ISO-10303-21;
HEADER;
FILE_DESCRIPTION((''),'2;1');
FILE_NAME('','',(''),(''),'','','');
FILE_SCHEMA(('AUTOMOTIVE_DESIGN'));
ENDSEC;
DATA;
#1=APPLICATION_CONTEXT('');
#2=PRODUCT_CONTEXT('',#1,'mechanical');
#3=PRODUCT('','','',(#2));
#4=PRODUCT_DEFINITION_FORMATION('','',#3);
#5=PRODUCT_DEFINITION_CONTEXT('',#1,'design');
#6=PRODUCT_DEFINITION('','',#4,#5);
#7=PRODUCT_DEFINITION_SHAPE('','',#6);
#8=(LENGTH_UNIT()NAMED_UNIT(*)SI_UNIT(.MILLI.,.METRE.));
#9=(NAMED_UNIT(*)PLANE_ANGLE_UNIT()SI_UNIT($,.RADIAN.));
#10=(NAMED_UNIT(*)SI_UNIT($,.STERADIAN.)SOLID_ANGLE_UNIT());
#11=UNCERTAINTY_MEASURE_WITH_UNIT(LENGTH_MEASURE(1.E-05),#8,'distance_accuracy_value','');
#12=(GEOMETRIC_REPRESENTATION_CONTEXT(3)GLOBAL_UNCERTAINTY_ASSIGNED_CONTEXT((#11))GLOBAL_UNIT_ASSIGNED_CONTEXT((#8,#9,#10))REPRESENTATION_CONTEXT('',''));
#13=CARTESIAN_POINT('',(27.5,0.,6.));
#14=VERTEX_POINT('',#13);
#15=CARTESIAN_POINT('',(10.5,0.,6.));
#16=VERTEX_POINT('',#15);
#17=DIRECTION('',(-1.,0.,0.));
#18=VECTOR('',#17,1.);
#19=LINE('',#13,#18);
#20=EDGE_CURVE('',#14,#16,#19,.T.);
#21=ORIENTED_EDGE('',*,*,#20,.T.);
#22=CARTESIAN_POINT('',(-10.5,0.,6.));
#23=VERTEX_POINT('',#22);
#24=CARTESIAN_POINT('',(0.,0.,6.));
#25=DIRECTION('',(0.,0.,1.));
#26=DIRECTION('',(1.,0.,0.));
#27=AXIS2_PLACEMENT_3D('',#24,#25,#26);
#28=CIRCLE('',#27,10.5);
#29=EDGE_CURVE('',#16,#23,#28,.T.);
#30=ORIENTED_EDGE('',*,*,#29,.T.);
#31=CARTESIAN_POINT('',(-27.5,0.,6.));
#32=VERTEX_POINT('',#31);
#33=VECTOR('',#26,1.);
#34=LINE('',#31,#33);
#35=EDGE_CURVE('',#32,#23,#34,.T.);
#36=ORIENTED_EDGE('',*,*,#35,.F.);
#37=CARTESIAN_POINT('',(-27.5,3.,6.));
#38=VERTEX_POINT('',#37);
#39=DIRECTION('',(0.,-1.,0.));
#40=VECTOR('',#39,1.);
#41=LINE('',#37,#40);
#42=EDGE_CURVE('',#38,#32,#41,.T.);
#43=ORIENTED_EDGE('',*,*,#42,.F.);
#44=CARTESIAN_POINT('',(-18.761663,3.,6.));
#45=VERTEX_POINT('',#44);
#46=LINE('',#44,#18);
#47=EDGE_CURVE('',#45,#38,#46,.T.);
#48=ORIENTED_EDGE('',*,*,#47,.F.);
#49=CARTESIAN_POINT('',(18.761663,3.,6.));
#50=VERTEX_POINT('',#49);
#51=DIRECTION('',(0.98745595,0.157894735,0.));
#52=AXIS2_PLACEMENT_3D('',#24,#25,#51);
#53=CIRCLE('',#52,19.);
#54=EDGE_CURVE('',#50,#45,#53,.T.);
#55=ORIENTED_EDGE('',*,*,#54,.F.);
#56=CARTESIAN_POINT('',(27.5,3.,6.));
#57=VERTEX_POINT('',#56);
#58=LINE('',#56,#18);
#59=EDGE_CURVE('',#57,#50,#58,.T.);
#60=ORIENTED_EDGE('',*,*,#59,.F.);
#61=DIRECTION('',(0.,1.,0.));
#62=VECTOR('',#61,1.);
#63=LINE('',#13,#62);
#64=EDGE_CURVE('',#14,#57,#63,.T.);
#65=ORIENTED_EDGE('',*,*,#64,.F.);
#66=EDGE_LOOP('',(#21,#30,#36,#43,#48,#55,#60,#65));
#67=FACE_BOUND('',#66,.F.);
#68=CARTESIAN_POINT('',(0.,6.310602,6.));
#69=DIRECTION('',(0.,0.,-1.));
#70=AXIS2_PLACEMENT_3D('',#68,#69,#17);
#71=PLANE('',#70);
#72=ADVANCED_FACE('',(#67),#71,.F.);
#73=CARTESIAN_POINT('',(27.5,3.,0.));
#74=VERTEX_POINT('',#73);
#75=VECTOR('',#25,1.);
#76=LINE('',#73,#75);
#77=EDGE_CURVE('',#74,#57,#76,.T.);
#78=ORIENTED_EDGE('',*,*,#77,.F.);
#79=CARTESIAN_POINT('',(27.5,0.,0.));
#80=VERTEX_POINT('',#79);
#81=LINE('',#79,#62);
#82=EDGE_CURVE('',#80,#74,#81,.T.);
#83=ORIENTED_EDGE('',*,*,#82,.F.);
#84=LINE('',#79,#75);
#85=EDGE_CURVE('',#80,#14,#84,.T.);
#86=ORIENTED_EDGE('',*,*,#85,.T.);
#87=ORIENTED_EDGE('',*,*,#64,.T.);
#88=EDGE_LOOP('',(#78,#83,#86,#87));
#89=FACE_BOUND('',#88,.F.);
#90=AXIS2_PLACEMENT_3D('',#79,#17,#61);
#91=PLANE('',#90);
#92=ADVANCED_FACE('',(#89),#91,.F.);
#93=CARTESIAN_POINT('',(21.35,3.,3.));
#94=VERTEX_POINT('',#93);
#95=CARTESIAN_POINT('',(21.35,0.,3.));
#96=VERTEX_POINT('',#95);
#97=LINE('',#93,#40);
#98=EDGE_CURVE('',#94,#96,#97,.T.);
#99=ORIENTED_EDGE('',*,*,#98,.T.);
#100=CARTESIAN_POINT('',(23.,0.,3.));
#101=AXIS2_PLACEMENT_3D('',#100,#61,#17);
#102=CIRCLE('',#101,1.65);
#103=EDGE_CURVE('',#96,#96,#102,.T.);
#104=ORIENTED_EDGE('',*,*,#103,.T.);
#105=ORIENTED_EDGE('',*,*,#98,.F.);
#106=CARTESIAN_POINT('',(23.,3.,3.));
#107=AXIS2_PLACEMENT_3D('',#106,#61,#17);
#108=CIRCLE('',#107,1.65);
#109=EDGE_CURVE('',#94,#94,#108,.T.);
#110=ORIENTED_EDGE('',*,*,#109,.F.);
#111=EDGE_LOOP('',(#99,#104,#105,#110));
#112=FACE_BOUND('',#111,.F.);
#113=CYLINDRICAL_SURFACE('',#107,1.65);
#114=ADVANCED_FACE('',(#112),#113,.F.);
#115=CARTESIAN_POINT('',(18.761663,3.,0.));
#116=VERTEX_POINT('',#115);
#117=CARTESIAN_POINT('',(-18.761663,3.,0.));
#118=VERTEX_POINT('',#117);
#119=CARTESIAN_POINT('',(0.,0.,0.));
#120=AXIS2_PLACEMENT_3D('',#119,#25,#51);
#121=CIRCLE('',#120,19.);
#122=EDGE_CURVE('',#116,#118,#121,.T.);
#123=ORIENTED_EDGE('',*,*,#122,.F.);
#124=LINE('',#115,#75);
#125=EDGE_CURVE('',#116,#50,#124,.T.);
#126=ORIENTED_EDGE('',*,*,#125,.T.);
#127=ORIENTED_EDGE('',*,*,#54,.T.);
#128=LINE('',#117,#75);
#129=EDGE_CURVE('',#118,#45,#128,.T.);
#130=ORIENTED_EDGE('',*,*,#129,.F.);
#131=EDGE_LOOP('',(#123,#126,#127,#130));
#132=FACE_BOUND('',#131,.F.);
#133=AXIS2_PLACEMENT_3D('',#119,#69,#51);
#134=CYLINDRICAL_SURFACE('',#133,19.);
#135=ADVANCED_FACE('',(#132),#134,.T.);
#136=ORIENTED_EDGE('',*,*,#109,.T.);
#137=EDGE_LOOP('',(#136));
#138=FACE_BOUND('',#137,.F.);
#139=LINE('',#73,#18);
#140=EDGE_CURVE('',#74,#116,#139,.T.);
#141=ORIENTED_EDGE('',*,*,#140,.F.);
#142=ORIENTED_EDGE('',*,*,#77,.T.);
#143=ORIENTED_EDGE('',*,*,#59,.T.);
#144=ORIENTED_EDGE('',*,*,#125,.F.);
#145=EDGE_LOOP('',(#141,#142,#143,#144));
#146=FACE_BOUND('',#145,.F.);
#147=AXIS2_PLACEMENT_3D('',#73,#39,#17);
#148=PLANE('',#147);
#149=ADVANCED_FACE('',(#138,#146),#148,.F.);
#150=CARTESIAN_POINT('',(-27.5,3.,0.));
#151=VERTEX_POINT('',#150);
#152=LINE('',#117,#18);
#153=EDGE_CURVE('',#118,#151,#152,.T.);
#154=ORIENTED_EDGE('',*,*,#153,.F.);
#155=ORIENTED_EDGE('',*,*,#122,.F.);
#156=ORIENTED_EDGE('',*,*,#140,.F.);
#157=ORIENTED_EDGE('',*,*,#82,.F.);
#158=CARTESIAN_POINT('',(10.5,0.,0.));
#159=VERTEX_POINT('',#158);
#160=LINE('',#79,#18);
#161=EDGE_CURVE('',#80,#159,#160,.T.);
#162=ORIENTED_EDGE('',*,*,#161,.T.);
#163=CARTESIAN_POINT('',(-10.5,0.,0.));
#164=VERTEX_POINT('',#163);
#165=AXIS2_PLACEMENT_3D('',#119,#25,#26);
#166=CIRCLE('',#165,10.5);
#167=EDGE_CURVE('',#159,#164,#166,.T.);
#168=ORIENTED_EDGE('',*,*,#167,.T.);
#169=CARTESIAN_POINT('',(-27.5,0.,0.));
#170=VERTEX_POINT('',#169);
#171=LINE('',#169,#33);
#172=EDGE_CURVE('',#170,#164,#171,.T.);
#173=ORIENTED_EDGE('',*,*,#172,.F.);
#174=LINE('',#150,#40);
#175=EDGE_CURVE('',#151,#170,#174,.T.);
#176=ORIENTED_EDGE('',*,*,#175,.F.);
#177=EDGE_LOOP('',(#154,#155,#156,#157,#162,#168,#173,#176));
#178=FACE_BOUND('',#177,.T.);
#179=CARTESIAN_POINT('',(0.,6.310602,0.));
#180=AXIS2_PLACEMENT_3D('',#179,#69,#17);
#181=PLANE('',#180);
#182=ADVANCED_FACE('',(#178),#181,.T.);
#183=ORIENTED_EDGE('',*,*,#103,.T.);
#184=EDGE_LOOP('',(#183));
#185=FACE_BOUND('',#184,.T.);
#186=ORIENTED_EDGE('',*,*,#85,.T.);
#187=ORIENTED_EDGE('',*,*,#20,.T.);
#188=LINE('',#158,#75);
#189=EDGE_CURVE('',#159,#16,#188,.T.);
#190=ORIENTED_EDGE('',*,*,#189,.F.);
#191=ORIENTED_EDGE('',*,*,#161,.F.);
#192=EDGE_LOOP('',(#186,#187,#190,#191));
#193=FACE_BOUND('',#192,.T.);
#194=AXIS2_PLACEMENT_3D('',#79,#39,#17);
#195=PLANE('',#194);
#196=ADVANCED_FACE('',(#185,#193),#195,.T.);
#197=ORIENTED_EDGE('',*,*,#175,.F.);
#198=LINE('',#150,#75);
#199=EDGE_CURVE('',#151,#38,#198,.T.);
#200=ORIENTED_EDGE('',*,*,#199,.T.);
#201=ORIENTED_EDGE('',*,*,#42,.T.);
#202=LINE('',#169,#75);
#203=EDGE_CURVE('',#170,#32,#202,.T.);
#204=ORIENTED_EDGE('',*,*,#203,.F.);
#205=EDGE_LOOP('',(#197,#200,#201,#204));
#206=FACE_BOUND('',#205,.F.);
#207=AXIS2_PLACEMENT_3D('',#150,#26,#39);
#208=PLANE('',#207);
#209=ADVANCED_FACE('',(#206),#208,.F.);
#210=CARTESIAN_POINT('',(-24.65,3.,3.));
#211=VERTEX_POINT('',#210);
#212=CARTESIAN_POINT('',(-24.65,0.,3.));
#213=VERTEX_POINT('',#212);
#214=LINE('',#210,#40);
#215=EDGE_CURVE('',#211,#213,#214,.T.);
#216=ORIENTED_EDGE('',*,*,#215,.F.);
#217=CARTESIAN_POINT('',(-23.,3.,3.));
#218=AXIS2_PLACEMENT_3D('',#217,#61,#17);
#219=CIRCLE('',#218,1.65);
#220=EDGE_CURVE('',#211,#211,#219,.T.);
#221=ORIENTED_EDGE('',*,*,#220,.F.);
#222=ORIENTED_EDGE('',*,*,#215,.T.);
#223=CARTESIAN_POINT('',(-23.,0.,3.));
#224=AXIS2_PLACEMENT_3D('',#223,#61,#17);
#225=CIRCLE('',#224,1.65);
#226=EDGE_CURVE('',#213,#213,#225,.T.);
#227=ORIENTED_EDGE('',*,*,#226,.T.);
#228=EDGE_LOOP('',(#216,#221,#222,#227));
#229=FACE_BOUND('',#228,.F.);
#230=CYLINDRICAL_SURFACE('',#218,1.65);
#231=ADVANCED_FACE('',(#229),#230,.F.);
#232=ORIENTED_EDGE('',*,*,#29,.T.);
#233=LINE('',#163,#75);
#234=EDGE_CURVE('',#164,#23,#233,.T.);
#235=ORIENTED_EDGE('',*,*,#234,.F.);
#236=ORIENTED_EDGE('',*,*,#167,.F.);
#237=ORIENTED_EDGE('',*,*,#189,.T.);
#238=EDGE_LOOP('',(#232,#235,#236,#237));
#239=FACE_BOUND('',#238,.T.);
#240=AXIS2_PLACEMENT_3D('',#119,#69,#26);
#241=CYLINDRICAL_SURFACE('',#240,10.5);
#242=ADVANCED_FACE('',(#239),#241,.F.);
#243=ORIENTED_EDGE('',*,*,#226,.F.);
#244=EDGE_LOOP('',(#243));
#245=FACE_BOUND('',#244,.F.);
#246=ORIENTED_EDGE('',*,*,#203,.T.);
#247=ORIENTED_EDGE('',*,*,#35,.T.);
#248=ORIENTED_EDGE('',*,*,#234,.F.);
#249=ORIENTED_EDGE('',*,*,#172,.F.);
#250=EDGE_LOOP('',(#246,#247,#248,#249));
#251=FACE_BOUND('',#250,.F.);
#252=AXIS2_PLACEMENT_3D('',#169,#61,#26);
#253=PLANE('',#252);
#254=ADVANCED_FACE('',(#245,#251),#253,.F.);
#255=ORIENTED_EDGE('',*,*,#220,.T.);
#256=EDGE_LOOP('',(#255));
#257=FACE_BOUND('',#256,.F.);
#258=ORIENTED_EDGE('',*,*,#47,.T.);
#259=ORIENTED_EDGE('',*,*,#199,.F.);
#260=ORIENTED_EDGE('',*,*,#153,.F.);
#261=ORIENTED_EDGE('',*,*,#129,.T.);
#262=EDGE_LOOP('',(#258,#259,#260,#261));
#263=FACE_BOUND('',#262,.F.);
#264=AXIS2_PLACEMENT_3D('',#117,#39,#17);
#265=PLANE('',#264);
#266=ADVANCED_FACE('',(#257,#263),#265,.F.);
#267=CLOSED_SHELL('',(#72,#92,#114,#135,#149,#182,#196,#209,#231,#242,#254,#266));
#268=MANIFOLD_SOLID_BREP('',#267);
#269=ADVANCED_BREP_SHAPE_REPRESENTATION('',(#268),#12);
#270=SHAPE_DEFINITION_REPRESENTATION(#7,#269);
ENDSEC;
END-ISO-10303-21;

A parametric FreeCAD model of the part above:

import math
import FreeCAD as App
import Part
import Sketcher
from FreeCAD import Vector
Q = App.Units.Quantity

doc = App.newDocument("Part")
body = doc.addObject("PartDesign::Body", "Body")

# Sketch on XY plane
sketch1 = body.newObject("Sketcher::SketchObject", "Sketch")
sketch1.AttachmentSupport = (doc.getObject("XY_Plane"), [""])
sketch1.MapMode = "FlatFace"
sketch1.addGeometry(Part.ArcOfCircle(Part.Circle(Vector(0, 0, 0), Vector(0, 0, 1), 10.5), math.radians(0), math.radians(180)), False)
sketch1.addGeometry(Part.LineSegment(Vector(10.5, 0, 0), Vector(27.5, 0, 0)), False)
sketch1.addGeometry(Part.LineSegment(Vector(27.5, 0, 0), Vector(27.5, 3, 0)), False)
sketch1.addGeometry(Part.LineSegment(Vector(27.5, 3, 0), Vector(18.8, 3, 0)), False)
sketch1.addGeometry(Part.ArcOfCircle(Part.Circle(Vector(0, 0, 0), Vector(0, 0, 1), 19), math.radians(9), math.radians(171)), False)
sketch1.addGeometry(Part.LineSegment(Vector(-18.8, 3, 0), Vector(-27.5, 3, 0)), False)
sketch1.addGeometry(Part.LineSegment(Vector(-27.5, 3, 0), Vector(-27.5, 0, 0)), False)
sketch1.addGeometry(Part.LineSegment(Vector(-27.5, 0, 0), Vector(-10.5, 0, 0)), False)
sketch1.addConstraint(Sketcher.Constraint("Coincident", 0, 1, 1, 1))
sketch1.addConstraint(Sketcher.Constraint("Coincident", 1, 2, 2, 1))
sketch1.addConstraint(Sketcher.Constraint("Coincident", 2, 2, 3, 1))
sketch1.addConstraint(Sketcher.Constraint("Coincident", 3, 2, 4, 1))
sketch1.addConstraint(Sketcher.Constraint("Coincident", 4, 2, 5, 1))
sketch1.addConstraint(Sketcher.Constraint("Coincident", 5, 2, 6, 1))
sketch1.addConstraint(Sketcher.Constraint("Coincident", 6, 2, 7, 1))
sketch1.addConstraint(Sketcher.Constraint("Coincident", 7, 2, 0, 2))
sketch1.addConstraint(Sketcher.Constraint("Horizontal", 1))
sketch1.addConstraint(Sketcher.Constraint("Vertical", 2))
sketch1.addConstraint(Sketcher.Constraint("Horizontal", 3))
sketch1.addConstraint(Sketcher.Constraint("Horizontal", 5))
sketch1.addConstraint(Sketcher.Constraint("Vertical", 6))
sketch1.addConstraint(Sketcher.Constraint("Horizontal", 7))
sketch1.addConstraint(Sketcher.Constraint("Coincident", 0, 3, -1, 1))
sketch1.addConstraint(Sketcher.Constraint("Coincident", 4, 3, -1, 1))
sketch1.addConstraint(Sketcher.Constraint("Symmetric", 1, 2, 6, 2, -1, 1))
sketch1.addConstraint(Sketcher.Constraint("PointOnObject", 0, 1, -1))
sketch1.addConstraint(Sketcher.Constraint("Horizontal", 3, 2, 4, 2))
sketch1.addConstraint(Sketcher.Constraint("Radius", 4, Q("19 mm")))
sketch1.addConstraint(Sketcher.Constraint("Radius", 0, Q("10.5 mm")))
sketch1.addConstraint(Sketcher.Constraint("DistanceX", 1, 1, 1, 2, Q("17 mm")))
sketch1.addConstraint(Sketcher.Constraint("DistanceY", 2, 1, 2, 2, Q("3 mm")))
pad1 = body.newObject("PartDesign::Pad", "Pad")
pad1.Profile = sketch1
pad1.Length = 6

# Sketch on XZ plane
sketch2 = body.newObject("Sketcher::SketchObject", "Sketch001")
sketch2.AttachmentSupport = (doc.getObject("XZ_Plane"), [""])
sketch2.MapMode = "FlatFace"
sketch2.AttachmentOffset = App.Placement(Vector(0, 0, -3), App.Rotation())
sketch2.addGeometry(Part.Circle(Vector(23, 3, 0), Vector(0, 0, 1), 1.6), False)
sketch2.addGeometry(Part.Circle(Vector(-23, 3, 0), Vector(0, 0, 1), 1.6), False)
sketch2.addConstraint(Sketcher.Constraint("Equal", 0, 1))
sketch2.addConstraint(Sketcher.Constraint("Symmetric", 0, 3, 1, 3, -2))
sketch2.addConstraint(Sketcher.Constraint("Diameter", 0, Q("3.3 mm")))
sketch2.addConstraint(Sketcher.Constraint("DistanceX", -1, 1, 0, 3, Q("23 mm")))
sketch2.addConstraint(Sketcher.Constraint("DistanceY", -1, 1, 0, 3, Q("3 mm")))
pocket1 = body.newObject("PartDesign::Pocket", "Pocket")
pocket1.Profile = sketch2
pocket1.Length = 25
pocket1.Reversed = True

doc.recompute()
